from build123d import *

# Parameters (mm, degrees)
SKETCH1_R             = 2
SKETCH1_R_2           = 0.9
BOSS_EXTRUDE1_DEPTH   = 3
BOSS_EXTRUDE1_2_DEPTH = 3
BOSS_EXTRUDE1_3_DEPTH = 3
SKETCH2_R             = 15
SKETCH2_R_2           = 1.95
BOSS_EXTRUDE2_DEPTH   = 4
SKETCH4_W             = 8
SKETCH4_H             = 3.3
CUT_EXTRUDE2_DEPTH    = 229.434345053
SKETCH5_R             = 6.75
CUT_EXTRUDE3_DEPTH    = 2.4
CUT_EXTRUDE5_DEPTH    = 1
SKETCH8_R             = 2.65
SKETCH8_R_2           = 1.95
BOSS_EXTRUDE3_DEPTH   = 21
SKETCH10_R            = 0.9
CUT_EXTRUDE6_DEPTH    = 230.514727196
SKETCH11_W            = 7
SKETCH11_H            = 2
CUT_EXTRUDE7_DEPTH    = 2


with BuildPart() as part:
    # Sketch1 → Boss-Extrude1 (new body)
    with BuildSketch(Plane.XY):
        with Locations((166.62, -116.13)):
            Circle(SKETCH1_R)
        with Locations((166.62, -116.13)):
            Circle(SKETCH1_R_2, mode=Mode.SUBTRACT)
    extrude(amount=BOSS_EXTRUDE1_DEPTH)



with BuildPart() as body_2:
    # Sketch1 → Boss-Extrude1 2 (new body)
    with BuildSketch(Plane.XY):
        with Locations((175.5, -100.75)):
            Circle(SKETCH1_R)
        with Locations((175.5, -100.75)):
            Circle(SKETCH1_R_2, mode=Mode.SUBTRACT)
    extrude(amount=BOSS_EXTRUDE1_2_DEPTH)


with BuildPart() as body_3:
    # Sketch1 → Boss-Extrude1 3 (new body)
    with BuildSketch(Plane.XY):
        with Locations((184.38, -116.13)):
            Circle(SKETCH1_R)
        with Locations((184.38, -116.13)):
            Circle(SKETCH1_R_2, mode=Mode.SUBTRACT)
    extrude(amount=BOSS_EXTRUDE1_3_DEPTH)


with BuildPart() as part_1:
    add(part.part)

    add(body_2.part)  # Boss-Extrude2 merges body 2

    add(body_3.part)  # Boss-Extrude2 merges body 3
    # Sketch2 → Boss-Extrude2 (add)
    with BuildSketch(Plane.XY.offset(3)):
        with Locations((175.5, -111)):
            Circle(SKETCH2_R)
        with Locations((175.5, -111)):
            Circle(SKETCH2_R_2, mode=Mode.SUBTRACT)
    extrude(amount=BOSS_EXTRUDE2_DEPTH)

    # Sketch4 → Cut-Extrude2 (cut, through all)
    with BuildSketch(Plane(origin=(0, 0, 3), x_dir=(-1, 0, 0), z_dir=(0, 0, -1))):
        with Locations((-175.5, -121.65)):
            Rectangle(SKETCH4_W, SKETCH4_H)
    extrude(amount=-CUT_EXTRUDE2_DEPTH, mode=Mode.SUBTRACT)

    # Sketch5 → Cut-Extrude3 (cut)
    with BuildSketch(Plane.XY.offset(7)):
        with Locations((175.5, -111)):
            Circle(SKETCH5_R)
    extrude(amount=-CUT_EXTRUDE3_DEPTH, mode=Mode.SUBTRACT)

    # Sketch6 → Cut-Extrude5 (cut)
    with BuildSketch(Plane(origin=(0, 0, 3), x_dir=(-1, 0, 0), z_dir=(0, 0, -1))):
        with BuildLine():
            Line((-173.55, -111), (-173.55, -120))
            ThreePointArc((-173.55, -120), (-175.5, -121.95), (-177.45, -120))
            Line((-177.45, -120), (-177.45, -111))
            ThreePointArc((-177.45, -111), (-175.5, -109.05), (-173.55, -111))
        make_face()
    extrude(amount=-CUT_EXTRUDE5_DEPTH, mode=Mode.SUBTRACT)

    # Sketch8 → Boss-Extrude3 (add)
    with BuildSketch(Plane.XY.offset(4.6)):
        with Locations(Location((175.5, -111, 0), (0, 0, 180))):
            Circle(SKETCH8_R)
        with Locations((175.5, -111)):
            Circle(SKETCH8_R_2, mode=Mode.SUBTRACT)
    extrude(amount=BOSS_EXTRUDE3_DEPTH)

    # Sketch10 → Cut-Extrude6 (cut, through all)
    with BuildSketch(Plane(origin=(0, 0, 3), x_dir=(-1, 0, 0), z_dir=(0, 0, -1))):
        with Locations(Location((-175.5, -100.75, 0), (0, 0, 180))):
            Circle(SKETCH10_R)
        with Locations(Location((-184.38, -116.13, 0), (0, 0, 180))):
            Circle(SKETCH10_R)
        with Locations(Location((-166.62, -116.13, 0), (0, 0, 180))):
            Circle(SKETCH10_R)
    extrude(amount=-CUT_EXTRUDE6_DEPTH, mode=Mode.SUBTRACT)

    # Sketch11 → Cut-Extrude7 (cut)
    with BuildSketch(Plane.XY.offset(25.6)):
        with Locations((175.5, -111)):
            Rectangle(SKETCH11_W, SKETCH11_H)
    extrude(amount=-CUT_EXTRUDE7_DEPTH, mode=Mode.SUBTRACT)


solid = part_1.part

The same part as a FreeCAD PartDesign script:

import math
import FreeCAD as App
import Part
import Sketcher


def add_polygon(sketch, points):
    """Adds a closed chain of lines whose ends are joined by coincident constraints."""
    first, n = sketch.GeometryCount, len(points)
    for a, b in zip(points, points[1:] + points[:1]):
        sketch.addGeometry(Part.LineSegment(App.Vector(*a, 0), App.Vector(*b, 0)), False)
    for i in range(n):
        sketch.addConstraint(Sketcher.Constraint("Coincident", first + i, 2, first + (i + 1) % n, 1))

doc = App.newDocument("Part")
body = doc.addObject("PartDesign::Body", "Body")

# Sketch on XY plane
sketch1 = body.newObject("Sketcher::SketchObject", "Sketch")
sketch1.AttachmentSupport = (doc.getObject("XY_Plane"), [""])
sketch1.MapMode = "FlatFace"
sketch1.addGeometry(Part.Circle(App.Vector(166.6, -116.1, 0), App.Vector(0, 0, 1), 2), False)
sketch1.addGeometry(Part.Circle(App.Vector(166.6, -116.1, 0), App.Vector(0, 0, 1), 0.9), False)
sketch1.addConstraint(Sketcher.Constraint("Coincident", 1, 3, 0, 3))
sketch1.addConstraint(Sketcher.Constraint("Diameter", 0, 4.0))
sketch1.addConstraint(Sketcher.Constraint("Diameter", 1, 1.8))
sketch1.addConstraint(Sketcher.Constraint("DistanceX", -1, 1, 0, 3, 166.62))
sketch1.addConstraint(Sketcher.Constraint("DistanceY", 0, 3, -1, 1, 116.13))
pad1 = body.newObject("PartDesign::Pad", "Pad")
pad1.Profile = sketch1
pad1.Length = 3
body2 = doc.addObject("PartDesign::Body", "Body001")

# Sketch on XY plane
sketch2 = body2.newObject("Sketcher::SketchObject", "Sketch001")
sketch2.AttachmentSupport = (doc.getObject("XY_Plane001"), [""])
sketch2.MapMode = "FlatFace"
sketch2.addGeometry(Part.Circle(App.Vector(175.5, -100.8, 0), App.Vector(0, 0, 1), 2), False)
sketch2.addGeometry(Part.Circle(App.Vector(175.5, -100.8, 0), App.Vector(0, 0, 1), 0.9), False)
sketch2.addConstraint(Sketcher.Constraint("Coincident", 1, 3, 0, 3))
sketch2.addConstraint(Sketcher.Constraint("Diameter", 0, 4.0))
sketch2.addConstraint(Sketcher.Constraint("Diameter", 1, 1.8))
sketch2.addConstraint(Sketcher.Constraint("DistanceX", -1, 1, 0, 3, 175.5))
sketch2.addConstraint(Sketcher.Constraint("DistanceY", 0, 3, -1, 1, 100.75))
pad2 = body2.newObject("PartDesign::Pad", "Pad001")
pad2.Profile = sketch2
pad2.Length = 3
body3 = doc.addObject("PartDesign::Body", "Body002")

# Sketch on XY plane
sketch3 = body3.newObject("Sketcher::SketchObject", "Sketch002")
sketch3.AttachmentSupport = (doc.getObject("XY_Plane002"), [""])
sketch3.MapMode = "FlatFace"
sketch3.addGeometry(Part.Circle(App.Vector(184.4, -116.1, 0), App.Vector(0, 0, 1), 2), False)
sketch3.addGeometry(Part.Circle(App.Vector(184.4, -116.1, 0), App.Vector(0, 0, 1), 0.9), False)
sketch3.addConstraint(Sketcher.Constraint("Coincident", 1, 3, 0, 3))
sketch3.addConstraint(Sketcher.Constraint("Diameter", 0, 4.0))
sketch3.addConstraint(Sketcher.Constraint("Diameter", 1, 1.8))
sketch3.addConstraint(Sketcher.Constraint("DistanceX", -1, 1, 0, 3, 184.38))
sketch3.addConstraint(Sketcher.Constraint("DistanceY", 0, 3, -1, 1, 116.13))
pad3 = body3.newObject("PartDesign::Pad", "Pad002")
pad3.Profile = sketch3
pad3.Length = 3
body.AllowCompound = True
doc.recompute()

boolean = body.newObject("PartDesign::Boolean", "Boolean")
boolean.Type = "Fuse"
boolean.addObjects([body2])
doc.recompute()

boolean2 = body.newObject("PartDesign::Boolean", "Boolean001")
boolean2.Type = "Fuse"
boolean2.addObjects([body3])

# Sketch on XY plane
sketch4 = body.newObject("Sketcher::SketchObject", "Sketch003")
sketch4.AttachmentSupport = (doc.getObject("XY_Plane"), [""])
sketch4.MapMode = "FlatFace"
sketch4.AttachmentOffset = App.Placement(App.Vector(0, 0, 3), App.Rotation())
sketch4.addGeometry(Part.Circle(App.Vector(175.5, -111, 0), App.Vector(0, 0, 1), 15), False)
sketch4.addGeometry(Part.Circle(App.Vector(175.5, -111, 0), App.Vector(0, 0, 1), 1.9), False)
sketch4.addConstraint(Sketcher.Constraint("Coincident", 1, 3, 0, 3))
sketch4.addConstraint(Sketcher.Constraint("Diameter", 0, 30.0))
sketch4.addConstraint(Sketcher.Constraint("Diameter", 1, 3.9))
sketch4.addConstraint(Sketcher.Constraint("DistanceY", 0, 3, -1, 1, 111.0))
sketch4.addConstraint(Sketcher.Constraint("DistanceX", -1, 1, 0, 3, 175.5))
pad4 = body.newObject("PartDesign::Pad", "Pad003")
pad4.Profile = sketch4
pad4.Length = 4

# Sketch on XY plane
sketch5 = body.newObject("Sketcher::SketchObject", "Sketch004")
sketch5.AttachmentSupport = (doc.getObject("XY_Plane"), [""])
sketch5.MapMode = "FlatFace"
sketch5.AttachmentOffset = App.Placement(App.Vector(0, 0, 3), App.Rotation())
add_polygon(sketch5, [(179.5, -120), (179.5, -123.3), (171.5, -123.3), (171.5, -120)])  # lines 0-3
sketch5.addConstraint(Sketcher.Constraint("Vertical", 0))
sketch5.addConstraint(Sketcher.Constraint("Horizontal", 1))
sketch5.addConstraint(Sketcher.Constraint("Vertical", 2))
sketch5.addConstraint(Sketcher.Constraint("Horizontal", 3))
sketch5.addConstraint(Sketcher.Constraint("DistanceX", 1, 2, 1, 1, 8.0))
sketch5.addConstraint(Sketcher.Constraint("DistanceY", 0, 2, 0, 1, 3.3))
sketch5.addConstraint(Sketcher.Constraint("DistanceY", 2, 2, -1, 1, 120.0))
sketch5.addConstraint(Sketcher.Constraint("DistanceX", -1, 1, 0, 2, 179.5))
pocket1 = body.newObject("PartDesign::Pocket", "Pocket")
pocket1.Profile = sketch5
pocket1.Type = "ThroughAll"
pocket1.Reversed = True

# Sketch on XY plane
sketch6 = body.newObject("Sketcher::SketchObject", "Sketch005")
sketch6.AttachmentSupport = (doc.getObject("XY_Plane"), [""])
sketch6.MapMode = "FlatFace"
sketch6.AttachmentOffset = App.Placement(App.Vector(0, 0, 7), App.Rotation())
sketch6.addGeometry(Part.Circle(App.Vector(176, -111, 0), App.Vector(0, 0, 1), 7), False)
sketch6.addConstraint(Sketcher.Constraint("Diameter", 0, 13.5))
sketch6.addConstraint(Sketcher.Constraint("DistanceY", 0, 3, -1, 1, 111.0))
sketch6.addConstraint(Sketcher.Constraint("DistanceX", -1, 1, 0, 3, 175.5))
pocket2 = body.newObject("PartDesign::Pocket", "Pocket001")
pocket2.Profile = sketch6
pocket2.Length = 2.4

# Sketch on XY plane
sketch7 = body.newObject("Sketcher::SketchObject", "Sketch006")
sketch7.AttachmentSupport = (doc.getObject("XY_Plane"), [""])
sketch7.MapMode = "FlatFace"
sketch7.AttachmentOffset = App.Placement(App.Vector(0, 0, 3), App.Rotation())
sketch7.addGeometry(Part.LineSegment(App.Vector(173.6, -120, 0), App.Vector(173.6, -111, 0)), False)
sketch7.addGeometry(Part.ArcOfCircle(Part.Circle(App.Vector(175.5, -111, 0), App.Vector(0, 0, 1), 1.9), math.radians(0), math.radians(180)), False)
sketch7.addGeometry(Part.LineSegment(App.Vector(177.4, -111, 0), App.Vector(177.4, -120, 0)), False)
sketch7.addGeometry(Part.ArcOfCircle(Part.Circle(App.Vector(175.5, -120, 0), App.Vector(0, 0, 1), 1.9), math.radians(180), math.radians(360)), False)
sketch7.addConstraint(Sketcher.Constraint("Tangent", 0, 2, 1, 2))
sketch7.addConstraint(Sketcher.Constraint("Tangent", 1, 1, 2, 1))
sketch7.addConstraint(Sketcher.Constraint("Tangent", 2, 2, 3, 2))
sketch7.addConstraint(Sketcher.Constraint("Tangent", 3, 1, 0, 1))
sketch7.addConstraint(Sketcher.Constraint("Vertical", 0))
sketch7.addConstraint(Sketcher.Constraint("Vertical", 2))
sketch7.addConstraint(Sketcher.Constraint("DistanceY", 0, 1, 0, 2, 9.0))
sketch7.addConstraint(Sketcher.Constraint("Radius", 1, 1.95))
sketch7.addConstraint(Sketcher.Constraint("DistanceY", 1, 3, -1, 1, 111.0))
sketch7.addConstraint(Sketcher.Constraint("DistanceX", -1, 1, 1, 3, 175.5))
pocket3 = body.newObject("PartDesign::Pocket", "Pocket002")
pocket3.Profile = sketch7
pocket3.Length = 1
pocket3.Reversed = True

# Sketch on XY plane
sketch8 = body.newObject("Sketcher::SketchObject", "Sketch007")
sketch8.AttachmentSupport = (doc.getObject("XY_Plane"), [""])
sketch8.MapMode = "FlatFace"
sketch8.AttachmentOffset = App.Placement(App.Vector(0, 0, 4.6), App.Rotation())
sketch8.addGeometry(Part.Circle(App.Vector(175.5, -111, 0), App.Vector(0, 0, 1), 2.6), False)
sketch8.addGeometry(Part.Circle(App.Vector(175.5, -111, 0), App.Vector(0, 0, 1), 1.9), False)
sketch8.addConstraint(Sketcher.Constraint("Coincident", 1, 3, 0, 3))
sketch8.addConstraint(Sketcher.Constraint("Diameter", 0, 5.3))
sketch8.addConstraint(Sketcher.Constraint("Diameter", 1, 3.9))
sketch8.addConstraint(Sketcher.Constraint("DistanceY", 0, 3, -1, 1, 111.0))
sketch8.addConstraint(Sketcher.Constraint("DistanceX", -1, 1, 0, 3, 175.5))
pad5 = body.newObject("PartDesign::Pad", "Pad004")
pad5.Profile = sketch8
pad5.Length = 21

# Sketch on XY plane
sketch9 = body.newObject("Sketcher::SketchObject", "Sketch008")
sketch9.AttachmentSupport = (doc.getObject("XY_Plane"), [""])
sketch9.MapMode = "FlatFace"
sketch9.AttachmentOffset = App.Placement(App.Vector(0, 0, 3), App.Rotation())
sketch9.addGeometry(Part.Circle(App.Vector(175.5, -100.8, 0), App.Vector(0, 0, 1), 0.9), False)
sketch9.addGeometry(Part.Circle(App.Vector(184.4, -116.1, 0), App.Vector(0, 0, 1), 0.9), False)
sketch9.addGeometry(Part.Circle(App.Vector(166.6, -116.1, 0), App.Vector(0, 0, 1), 0.9), False)
sketch9.addConstraint(Sketcher.Constraint("Equal", 0, 1))
sketch9.addConstraint(Sketcher.Constraint("Equal", 1, 2))
sketch9.addConstraint(Sketcher.Constraint("Horizontal", 1, 3, 2, 3))
sketch9.addConstraint(Sketcher.Constraint("Diameter", 0, 1.8))
sketch9.addConstraint(Sketcher.Constraint("DistanceX", -1, 1, 0, 3, 175.5))
sketch9.addConstraint(Sketcher.Constraint("DistanceY", 0, 3, -1, 1, 100.75))
sketch9.addConstraint(Sketcher.Constraint("DistanceX", -1, 1, 1, 3, 184.38))
sketch9.addConstraint(Sketcher.Constraint("DistanceY", 1, 3, -1, 1, 116.13))
sketch9.addConstraint(Sketcher.Constraint("DistanceX", -1, 1, 2, 3, 166.62))
pocket4 = body.newObject("PartDesign::Pocket", "Pocket003")
pocket4.Profile = sketch9
pocket4.Type = "ThroughAll"
pocket4.Reversed = True

# Sketch on XY plane
sketch10 = body.newObject("Sketcher::SketchObject", "Sketch009")
sketch10.AttachmentSupport = (doc.getObject("XY_Plane"), [""])
sketch10.MapMode = "FlatFace"
sketch10.AttachmentOffset = App.Placement(App.Vector(0, 0, 25.6), App.Rotation())
add_polygon(sketch10, [(172, -110), (172, -112), (179, -112), (179, -110)])  # lines 0-3
sketch10.addConstraint(Sketcher.Constraint("Vertical", 0))
sketch10.addConstraint(Sketcher.Constraint("Horizontal", 1))
sketch10.addConstraint(Sketcher.Constraint("Vertical", 2))
sketch10.addConstraint(Sketcher.Constraint("Horizontal", 3))
sketch10.addConstraint(Sketcher.Constraint("DistanceX", 1, 1, 1, 2, 7.0))
sketch10.addConstraint(Sketcher.Constraint("DistanceY", 0, 2, 0, 1, 2.0))
sketch10.addConstraint(Sketcher.Constraint("DistanceX", -1, 1, 0, 2, 172.0))
sketch10.addConstraint(Sketcher.Constraint("DistanceY", 0, 2, -1, 1, 112.0))
pocket5 = body.newObject("PartDesign::Pocket", "Pocket004")
pocket5.Profile = sketch10
pocket5.Length = 2

doc.recompute()
